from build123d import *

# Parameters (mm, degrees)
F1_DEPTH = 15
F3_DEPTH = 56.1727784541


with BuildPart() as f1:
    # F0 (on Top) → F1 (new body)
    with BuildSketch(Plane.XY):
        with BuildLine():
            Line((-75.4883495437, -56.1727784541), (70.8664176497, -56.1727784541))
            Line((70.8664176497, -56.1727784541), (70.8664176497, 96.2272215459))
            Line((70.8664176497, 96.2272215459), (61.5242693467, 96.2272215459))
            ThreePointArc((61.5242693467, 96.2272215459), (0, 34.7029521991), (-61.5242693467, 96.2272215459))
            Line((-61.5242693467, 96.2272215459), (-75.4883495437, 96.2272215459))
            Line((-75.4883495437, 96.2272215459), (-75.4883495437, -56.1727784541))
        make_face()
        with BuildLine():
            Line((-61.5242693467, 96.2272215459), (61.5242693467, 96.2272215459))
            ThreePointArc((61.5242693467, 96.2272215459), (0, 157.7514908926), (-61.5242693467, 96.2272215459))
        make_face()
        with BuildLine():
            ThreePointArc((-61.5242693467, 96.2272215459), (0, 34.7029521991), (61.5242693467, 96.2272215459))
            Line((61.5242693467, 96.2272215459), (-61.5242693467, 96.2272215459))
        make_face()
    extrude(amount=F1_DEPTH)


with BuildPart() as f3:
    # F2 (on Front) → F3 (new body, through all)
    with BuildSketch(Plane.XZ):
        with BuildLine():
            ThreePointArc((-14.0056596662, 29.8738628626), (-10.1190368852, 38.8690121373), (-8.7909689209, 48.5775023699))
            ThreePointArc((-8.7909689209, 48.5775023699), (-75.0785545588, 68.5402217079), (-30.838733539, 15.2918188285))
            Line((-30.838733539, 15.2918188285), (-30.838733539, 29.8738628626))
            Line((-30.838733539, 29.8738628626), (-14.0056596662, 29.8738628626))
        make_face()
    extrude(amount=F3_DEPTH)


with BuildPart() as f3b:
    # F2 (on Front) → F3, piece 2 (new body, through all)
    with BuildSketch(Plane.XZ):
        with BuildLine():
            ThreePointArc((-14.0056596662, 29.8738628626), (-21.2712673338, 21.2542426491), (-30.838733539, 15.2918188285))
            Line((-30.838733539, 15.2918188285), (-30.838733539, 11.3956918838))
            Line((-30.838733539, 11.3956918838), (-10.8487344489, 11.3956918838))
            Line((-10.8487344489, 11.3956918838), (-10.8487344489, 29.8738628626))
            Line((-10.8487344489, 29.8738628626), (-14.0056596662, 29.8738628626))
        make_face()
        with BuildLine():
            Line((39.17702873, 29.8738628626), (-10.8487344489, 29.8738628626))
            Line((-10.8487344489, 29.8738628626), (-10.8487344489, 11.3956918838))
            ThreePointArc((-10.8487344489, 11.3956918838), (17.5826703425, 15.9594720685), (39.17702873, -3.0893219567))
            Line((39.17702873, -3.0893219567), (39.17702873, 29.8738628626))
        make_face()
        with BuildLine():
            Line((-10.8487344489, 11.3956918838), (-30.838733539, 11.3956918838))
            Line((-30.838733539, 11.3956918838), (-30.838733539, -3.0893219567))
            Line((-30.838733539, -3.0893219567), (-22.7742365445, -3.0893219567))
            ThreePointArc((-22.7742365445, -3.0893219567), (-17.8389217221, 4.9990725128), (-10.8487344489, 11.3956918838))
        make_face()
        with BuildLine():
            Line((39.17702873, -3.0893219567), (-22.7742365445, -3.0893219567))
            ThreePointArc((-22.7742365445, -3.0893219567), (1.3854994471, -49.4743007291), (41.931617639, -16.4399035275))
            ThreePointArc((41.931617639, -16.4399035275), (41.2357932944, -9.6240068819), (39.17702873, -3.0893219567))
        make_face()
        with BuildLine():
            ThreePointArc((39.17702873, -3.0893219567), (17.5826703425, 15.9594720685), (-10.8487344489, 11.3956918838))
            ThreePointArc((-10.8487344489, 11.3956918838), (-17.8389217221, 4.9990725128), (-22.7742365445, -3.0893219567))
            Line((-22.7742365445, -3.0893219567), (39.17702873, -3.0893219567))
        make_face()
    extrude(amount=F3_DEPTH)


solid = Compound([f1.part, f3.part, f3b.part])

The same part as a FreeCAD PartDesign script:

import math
import FreeCAD as App
import Part
import Sketcher
from FreeCAD import Vector
Q = App.Units.Quantity

doc = App.newDocument("Part")
body = doc.addObject("PartDesign::Body", "Body")

sketch1 = body.newObject("Sketcher::SketchObject", "Sketch")
sketch1.AttachmentSupport = (doc.getObject("XY_Plane"), [""])
sketch1.MapMode = "FlatFace"
sketch1.addGeometry([
    Part.LineSegment(Vector(-75, -56, 0), Vector(71, -56, 0)),
    Part.LineSegment(Vector(71, -56, 0), Vector(71, 96, 0)),
    Part.LineSegment(Vector(71, 96, 0), Vector(62, 96, 0)),
    Part.ArcOfCircle(Part.Circle(Vector(0, 96, 0), Vector(0, 0, 1), 62), math.radians(0), math.radians(180)),
    Part.LineSegment(Vector(-62, 96, 0), Vector(-75, 96, 0)),
    Part.LineSegment(Vector(-75, 96, 0), Vector(-75, -56, 0)),
], False)
sketch1.addConstraint([
    Sketcher.Constraint("Coincident", 0, 2, 1, 1),
    Sketcher.Constraint("Coincident", 1, 2, 2, 1),
    Sketcher.Constraint("Coincident", 2, 2, 3, 1),
    Sketcher.Constraint("Coincident", 3, 2, 4, 1),
    Sketcher.Constraint("Coincident", 4, 2, 5, 1),
    Sketcher.Constraint("Coincident", 5, 2, 0, 1),
    Sketcher.Constraint("Horizontal", 0),
    Sketcher.Constraint("Vertical", 1),
    Sketcher.Constraint("Horizontal", 2),
    Sketcher.Constraint("Horizontal", 4),
    Sketcher.Constraint("Vertical", 5),
    Sketcher.Constraint("Symmetric", 2, 2, 3, 2, -2),
    Sketcher.Constraint("Horizontal", 3, 3, 1, 2),
    Sketcher.Constraint("DistanceY", 1, 1, 1, 2, Q("152.4 mm")),
    Sketcher.Constraint("Radius", 3, Q("61.524269 mm")),
    Sketcher.Constraint("DistanceX", 2, 2, 2, 1, Q("9.342148 mm")),
    Sketcher.Constraint("DistanceX", 4, 2, 4, 1, Q("13.96408 mm")),
    Sketcher.Constraint("DistanceY", -1, 1, 3, 3, Q("96.227222 mm")),
])
pad1 = body.newObject("PartDesign::Pad", "Pad")
pad1.Profile = sketch1
pad1.Length = 15
body2 = doc.addObject("PartDesign::Body", "Body001")

sketch2 = body2.newObject("Sketcher::SketchObject", "Sketch001")
sketch2.AttachmentSupport = (doc.getObject("XZ_Plane001"), [""])
sketch2.MapMode = "FlatFace"
sketch2.addGeometry([
    Part.ArcOfCircle(Part.Circle(Vector(-45, 49, 0), Vector(0, 0, 1), 36), math.radians(-31), math.radians(0)),
    Part.ArcOfCircle(Part.Circle(Vector(-45, 49, 0), Vector(0, 0, 1), 36), math.radians(0), math.radians(293)),
    Part.LineSegment(Vector(-31, 15, 0), Vector(-31, 30, 0)),
    Part.LineSegment(Vector(-31, 30, 0), Vector(-14, 30, 0)),
], False)
sketch2.addConstraint([
    Sketcher.Constraint("Tangent", 0, 2, 1, 1),
    Sketcher.Constraint("Coincident", 1, 2, 2, 1),
    Sketcher.Constraint("Coincident", 2, 2, 3, 1),
    Sketcher.Constraint("Coincident", 3, 2, 0, 1),
    Sketcher.Constraint("Vertical", 2),
    Sketcher.Constraint("Horizontal", 3),
    Sketcher.Constraint("Equal", 0, 1),
    Sketcher.Constraint("Horizontal", 1, 3, 0, 2),
    Sketcher.Constraint("Radius", 0, Q("36.149711 mm")),
    Sketcher.Constraint("DistanceX", 3, 1, 3, 2, Q("16.833074 mm")),
    Sketcher.Constraint("DistanceY", 2, 1, 2, 2, Q("14.582044 mm")),
    Sketcher.Constraint("DistanceX", 0, 3, -1, 1, Q("44.94068 mm")),
    Sketcher.Constraint("DistanceY", -1, 1, 1, 2, Q("15.291819 mm")),
])
pad2 = body2.newObject("PartDesign::Pad", "Pad001")
pad2.Profile = sketch2
pad2.Length = 56.172778
body3 = doc.addObject("PartDesign::Body", "Body002")

sketch3 = body3.newObject("Sketcher::SketchObject", "Sketch002")
sketch3.AttachmentSupport = (doc.getObject("XZ_Plane002"), [""])
sketch3.MapMode = "FlatFace"
sketch3.addGeometry([
    Part.ArcOfCircle(Part.Circle(Vector(-45, 49, 0), Vector(0, 0, 1), 36), math.radians(-67), math.radians(-31)),
    Part.LineSegment(Vector(-31, 15, 0), Vector(-31, -3, 0)),
    Part.LineSegment(Vector(-31, -3, 0), Vector(-23, -3, 0)),
    Part.ArcOfCircle(Part.Circle(Vector(8, -16, 0), Vector(0, 0, 1), 34), math.radians(157), math.radians(360)),
    Part.ArcOfCircle(Part.Circle(Vector(8, -16, 0), Vector(0, 0, 1), 34), math.radians(0), math.radians(23)),
    Part.LineSegment(Vector(39, -3, 0), Vector(39, 30, 0)),
    Part.LineSegment(Vector(39, 30, 0), Vector(-14, 30, 0)),
], False)
sketch3.addConstraint([
    Sketcher.Constraint("Coincident", 0, 1, 1, 1),
    Sketcher.Constraint("Coincident", 1, 2, 2, 1),
    Sketcher.Constraint("Coincident", 2, 2, 3, 1),
    Sketcher.Constraint("Tangent", 3, 2, 4, 1),
    Sketcher.Constraint("Coincident", 4, 2, 5, 1),
    Sketcher.Constraint("Coincident", 5, 2, 6, 1),
    Sketcher.Constraint("Coincident", 6, 2, 0, 2),
    Sketcher.Constraint("Vertical", 1),
    Sketcher.Constraint("Horizontal", 2),
    Sketcher.Constraint("Vertical", 5),
    Sketcher.Constraint("Horizontal", 6),
    Sketcher.Constraint("Equal", 3, 4),
    Sketcher.Constraint("Horizontal", 4, 3, 3, 2),
    Sketcher.Constraint("Horizontal", 2, 2, 4, 2),
    Sketcher.Constraint("Radius", 0, Q("36.149711 mm")),
    Sketcher.Constraint("Radius", 3, Q("33.730222 mm")),
    Sketcher.Constraint("DistanceX", 6, 2, 6, 1, Q("53.182688 mm")),
    Sketcher.Constraint("DistanceY", 1, 2, 1, 1, Q("18.381141 mm")),
    Sketcher.Constraint("DistanceX", 2, 1, 2, 2, Q("8.064497 mm")),
    Sketcher.Constraint("DistanceY", 5, 1, 5, 2, Q("32.963185 mm")),
    Sketcher.Constraint("DistanceX", 0, 3, -1, 1, Q("44.94068 mm")),
    Sketcher.Constraint("DistanceY", -1, 1, 0, 1, Q("15.291819 mm")),
    Sketcher.Constraint("DistanceX", -1, 1, 4, 2, Q("39.177029 mm")),
])
pad3 = body3.newObject("PartDesign::Pad", "Pad002")
pad3.Profile = sketch3
pad3.Length = 56.172778

doc.recompute()
